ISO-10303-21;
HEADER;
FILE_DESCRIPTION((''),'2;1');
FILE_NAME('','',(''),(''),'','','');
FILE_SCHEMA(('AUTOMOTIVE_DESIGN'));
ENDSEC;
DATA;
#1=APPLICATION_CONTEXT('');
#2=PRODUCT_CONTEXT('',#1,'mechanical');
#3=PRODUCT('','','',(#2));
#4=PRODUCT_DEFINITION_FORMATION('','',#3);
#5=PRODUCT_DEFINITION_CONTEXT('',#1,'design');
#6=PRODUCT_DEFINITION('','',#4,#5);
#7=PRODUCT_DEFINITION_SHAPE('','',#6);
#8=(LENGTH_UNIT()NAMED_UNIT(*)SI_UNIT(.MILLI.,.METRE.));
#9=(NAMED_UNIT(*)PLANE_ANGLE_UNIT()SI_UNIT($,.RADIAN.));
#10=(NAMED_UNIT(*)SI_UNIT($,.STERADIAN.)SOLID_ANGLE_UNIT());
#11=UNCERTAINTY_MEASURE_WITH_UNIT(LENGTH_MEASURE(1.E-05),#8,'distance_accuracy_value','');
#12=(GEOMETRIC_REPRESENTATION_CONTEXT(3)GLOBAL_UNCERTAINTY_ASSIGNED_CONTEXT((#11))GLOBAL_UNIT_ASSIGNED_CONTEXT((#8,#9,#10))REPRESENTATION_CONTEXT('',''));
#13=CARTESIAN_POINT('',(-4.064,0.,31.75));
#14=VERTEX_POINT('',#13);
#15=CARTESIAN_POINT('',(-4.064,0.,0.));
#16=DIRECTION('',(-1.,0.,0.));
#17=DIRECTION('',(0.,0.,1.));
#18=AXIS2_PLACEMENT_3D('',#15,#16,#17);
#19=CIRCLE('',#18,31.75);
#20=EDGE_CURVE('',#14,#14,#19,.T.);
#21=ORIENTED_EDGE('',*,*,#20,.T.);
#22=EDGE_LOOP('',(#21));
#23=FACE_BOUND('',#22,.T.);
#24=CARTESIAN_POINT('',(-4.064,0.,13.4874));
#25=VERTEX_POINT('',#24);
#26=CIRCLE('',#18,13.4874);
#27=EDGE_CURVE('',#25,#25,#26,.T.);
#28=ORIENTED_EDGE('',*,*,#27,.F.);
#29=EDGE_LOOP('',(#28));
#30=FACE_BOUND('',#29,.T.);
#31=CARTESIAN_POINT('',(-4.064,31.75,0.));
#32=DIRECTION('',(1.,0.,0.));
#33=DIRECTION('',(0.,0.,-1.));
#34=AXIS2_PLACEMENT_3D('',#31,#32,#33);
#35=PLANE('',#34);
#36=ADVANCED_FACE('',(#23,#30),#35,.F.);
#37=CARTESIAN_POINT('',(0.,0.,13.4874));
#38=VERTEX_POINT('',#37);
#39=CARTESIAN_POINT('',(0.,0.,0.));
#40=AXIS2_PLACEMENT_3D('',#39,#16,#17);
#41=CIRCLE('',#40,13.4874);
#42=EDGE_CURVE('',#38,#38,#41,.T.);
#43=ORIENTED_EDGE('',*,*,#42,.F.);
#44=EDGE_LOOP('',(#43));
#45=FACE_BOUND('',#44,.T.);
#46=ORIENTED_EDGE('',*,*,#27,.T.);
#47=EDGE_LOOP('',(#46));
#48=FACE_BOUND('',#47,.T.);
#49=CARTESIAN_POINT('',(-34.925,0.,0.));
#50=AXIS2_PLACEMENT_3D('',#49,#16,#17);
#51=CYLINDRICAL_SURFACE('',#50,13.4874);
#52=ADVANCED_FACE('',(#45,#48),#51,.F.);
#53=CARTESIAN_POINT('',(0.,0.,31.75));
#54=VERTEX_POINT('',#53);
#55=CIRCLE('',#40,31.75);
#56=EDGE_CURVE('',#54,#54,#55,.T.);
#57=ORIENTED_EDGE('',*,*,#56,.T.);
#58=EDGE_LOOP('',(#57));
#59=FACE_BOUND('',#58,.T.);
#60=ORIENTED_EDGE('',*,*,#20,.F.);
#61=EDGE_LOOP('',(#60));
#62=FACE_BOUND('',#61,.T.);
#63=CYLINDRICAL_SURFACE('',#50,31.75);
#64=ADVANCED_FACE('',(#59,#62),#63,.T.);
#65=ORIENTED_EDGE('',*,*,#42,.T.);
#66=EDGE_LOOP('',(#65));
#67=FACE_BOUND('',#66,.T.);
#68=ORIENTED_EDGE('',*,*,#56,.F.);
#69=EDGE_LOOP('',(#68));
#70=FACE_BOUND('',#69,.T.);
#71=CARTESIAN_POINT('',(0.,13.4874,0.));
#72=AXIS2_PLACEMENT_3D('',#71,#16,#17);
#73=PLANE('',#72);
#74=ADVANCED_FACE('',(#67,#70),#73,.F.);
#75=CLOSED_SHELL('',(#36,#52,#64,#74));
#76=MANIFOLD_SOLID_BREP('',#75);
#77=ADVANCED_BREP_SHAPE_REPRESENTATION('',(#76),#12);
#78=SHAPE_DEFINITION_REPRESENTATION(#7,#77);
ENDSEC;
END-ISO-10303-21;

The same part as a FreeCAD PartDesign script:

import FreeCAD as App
import Part
import Sketcher
Q = App.Units.Quantity

doc = App.newDocument("Part")
body = doc.addObject("PartDesign::Body", "Body")

# Sketch on XY plane
sketch1 = body.newObject("Sketcher::SketchObject", "Sketch")
sketch1.AttachmentSupport = (doc.getObject("XY_Plane"), [""])
sketch1.MapMode = "FlatFace"
sketch1.addGeometry(Part.LineSegment(App.Vector(-4.1, 31.8, 0), App.Vector(-4.1, 13.5, 0)), False)
sketch1.addGeometry(Part.LineSegment(App.Vector(-4.1, 13.5, 0), App.Vector(0, 13.5, 0)), False)
sketch1.addGeometry(Part.LineSegment(App.Vector(0, 13.5, 0), App.Vector(0, 31.8, 0)), False)
sketch1.addGeometry(Part.LineSegment(App.Vector(0, 31.8, 0), App.Vector(-4.1, 31.8, 0)), False)
sketch1.addConstraint(Sketcher.Constraint("Coincident", 0, 2, 1, 1))
sketch1.addConstraint(Sketcher.Constraint("Coincident", 1, 2, 2, 1))
sketch1.addConstraint(Sketcher.Constraint("Coincident", 2, 2, 3, 1))
sketch1.addConstraint(Sketcher.Constraint("Coincident", 3, 2, 0, 1))
sketch1.addConstraint(Sketcher.Constraint("Vertical", 0))
sketch1.addConstraint(Sketcher.Constraint("Horizontal", 1))
sketch1.addConstraint(Sketcher.Constraint("Vertical", 2))
sketch1.addConstraint(Sketcher.Constraint("Horizontal", 3))
sketch1.addConstraint(Sketcher.Constraint("PointOnObject", 1, 2, -2))
sketch1.addConstraint(Sketcher.Constraint("DistanceX", 1, 1, 1, 2, Q("0.16 in")))
sketch1.addConstraint(Sketcher.Constraint("DistanceY", 0, 2, 0, 1, Q("0.719 in")))
sketch1.addConstraint(Sketcher.Constraint("DistanceY", -1, 1, 2, 2, Q("1.25 in")))
revolution = body.newObject("PartDesign::Revolution", "Revolution")
revolution.Profile = sketch1
revolution.ReferenceAxis = (sketch1, ["H_Axis"])
revolution.Angle = 360

doc.recompute()
